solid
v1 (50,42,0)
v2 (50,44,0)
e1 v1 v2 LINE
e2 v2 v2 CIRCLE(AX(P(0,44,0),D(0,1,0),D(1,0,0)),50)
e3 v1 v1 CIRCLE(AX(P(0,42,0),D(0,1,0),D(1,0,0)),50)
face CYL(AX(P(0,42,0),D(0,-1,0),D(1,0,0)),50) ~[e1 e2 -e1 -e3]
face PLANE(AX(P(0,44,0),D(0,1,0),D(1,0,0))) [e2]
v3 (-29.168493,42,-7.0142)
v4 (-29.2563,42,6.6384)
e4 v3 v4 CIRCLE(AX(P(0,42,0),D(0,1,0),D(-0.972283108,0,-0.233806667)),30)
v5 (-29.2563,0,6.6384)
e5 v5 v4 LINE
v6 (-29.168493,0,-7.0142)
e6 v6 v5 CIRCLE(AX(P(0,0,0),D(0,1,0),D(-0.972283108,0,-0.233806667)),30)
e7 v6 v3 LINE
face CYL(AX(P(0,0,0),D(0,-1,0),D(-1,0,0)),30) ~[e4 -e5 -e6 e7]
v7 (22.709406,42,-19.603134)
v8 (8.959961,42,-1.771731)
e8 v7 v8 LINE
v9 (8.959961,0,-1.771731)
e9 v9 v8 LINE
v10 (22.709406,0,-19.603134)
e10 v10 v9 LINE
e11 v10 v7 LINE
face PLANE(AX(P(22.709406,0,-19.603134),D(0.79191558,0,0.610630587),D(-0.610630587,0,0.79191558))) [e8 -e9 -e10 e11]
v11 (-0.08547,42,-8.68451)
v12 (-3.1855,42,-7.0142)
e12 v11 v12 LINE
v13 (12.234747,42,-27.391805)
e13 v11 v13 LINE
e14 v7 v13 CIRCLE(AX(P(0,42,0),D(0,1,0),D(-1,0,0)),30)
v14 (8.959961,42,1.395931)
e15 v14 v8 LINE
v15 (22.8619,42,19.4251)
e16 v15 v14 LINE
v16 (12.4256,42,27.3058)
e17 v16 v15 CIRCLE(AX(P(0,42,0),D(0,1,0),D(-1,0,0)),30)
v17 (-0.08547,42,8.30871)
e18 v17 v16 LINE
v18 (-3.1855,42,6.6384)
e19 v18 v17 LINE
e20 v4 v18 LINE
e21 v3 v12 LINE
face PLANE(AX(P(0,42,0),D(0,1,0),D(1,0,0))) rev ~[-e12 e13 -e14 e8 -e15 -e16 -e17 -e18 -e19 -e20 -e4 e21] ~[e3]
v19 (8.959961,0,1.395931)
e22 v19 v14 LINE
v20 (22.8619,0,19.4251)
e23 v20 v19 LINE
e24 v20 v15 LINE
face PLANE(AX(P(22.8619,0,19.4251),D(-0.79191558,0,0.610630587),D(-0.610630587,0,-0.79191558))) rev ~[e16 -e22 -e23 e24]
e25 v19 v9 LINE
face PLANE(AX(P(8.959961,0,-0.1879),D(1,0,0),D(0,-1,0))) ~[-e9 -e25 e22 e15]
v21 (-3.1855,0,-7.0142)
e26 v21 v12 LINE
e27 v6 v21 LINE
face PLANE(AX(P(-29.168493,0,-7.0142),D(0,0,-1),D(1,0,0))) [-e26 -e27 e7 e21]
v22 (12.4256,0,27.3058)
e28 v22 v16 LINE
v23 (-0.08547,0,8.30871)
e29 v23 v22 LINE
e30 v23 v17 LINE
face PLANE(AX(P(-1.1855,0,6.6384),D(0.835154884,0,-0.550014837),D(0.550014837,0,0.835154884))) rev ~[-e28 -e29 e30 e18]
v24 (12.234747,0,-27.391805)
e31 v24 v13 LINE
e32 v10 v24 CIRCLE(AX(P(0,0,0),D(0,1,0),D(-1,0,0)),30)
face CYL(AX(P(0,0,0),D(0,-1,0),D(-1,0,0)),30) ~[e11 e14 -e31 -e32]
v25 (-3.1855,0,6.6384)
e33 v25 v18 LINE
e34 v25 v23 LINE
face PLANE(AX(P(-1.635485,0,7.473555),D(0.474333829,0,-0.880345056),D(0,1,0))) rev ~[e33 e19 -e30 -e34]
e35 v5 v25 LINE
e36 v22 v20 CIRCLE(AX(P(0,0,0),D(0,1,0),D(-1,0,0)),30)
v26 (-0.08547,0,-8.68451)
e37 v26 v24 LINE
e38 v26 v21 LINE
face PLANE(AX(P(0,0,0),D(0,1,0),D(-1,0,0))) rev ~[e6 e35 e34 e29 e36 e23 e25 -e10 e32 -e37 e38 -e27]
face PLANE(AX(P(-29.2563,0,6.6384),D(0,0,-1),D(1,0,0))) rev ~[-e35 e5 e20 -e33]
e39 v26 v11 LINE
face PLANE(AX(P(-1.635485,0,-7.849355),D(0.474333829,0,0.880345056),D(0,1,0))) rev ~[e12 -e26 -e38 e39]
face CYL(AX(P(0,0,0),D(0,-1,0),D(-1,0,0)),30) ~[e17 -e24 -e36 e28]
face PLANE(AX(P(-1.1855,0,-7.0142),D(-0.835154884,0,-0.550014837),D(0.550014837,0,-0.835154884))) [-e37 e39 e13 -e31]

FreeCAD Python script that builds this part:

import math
import FreeCAD as App
import Part
import Sketcher
Q = App.Units.Quantity


def edges_at(feature, points):
    """Names of the edges that pass closest to the given points."""
    edges = feature.Shape.Edges
    near = lambda p: min(range(len(edges)), key=lambda i: edges[i].distToShape(Part.Vertex(*p))[0])
    return sorted({f"Edge{near(p) + 1}" for p in points})

doc = App.newDocument("Part")
params = doc.addObject("Spreadsheet::Sheet", "Params")
for row, (alias, value) in enumerate([
    ("sketch1_radius", "30 mm"),
    ("pad1_length", "42 mm"),
    ("sketch2_diameter", "100 mm"),
    ("pad2_length", "2 mm"),
    ("chamfer_size", "2 mm"),
], start=1):
    params.set(f"A{row}", alias)
    params.set(f"B{row}", "=" + value)
    params.setAlias(f"B{row}", alias)

body = doc.addObject("PartDesign::Body", "Body")

# Sketch on XZ plane
sketch1 = doc.addObject("Sketcher::SketchObject", "Sketch")
body.addObject(sketch1)
sketch1.AttachmentSupport = (doc.XZ_Plane, [""])
sketch1.MapMode = "FlatFace"
sketch1.addGeometry([
    Part.ArcOfCircle(Part.Circle(App.Vector(0, 0, 0), App.Vector(0, 0, 1), 30), math.radians(167), math.radians(194)),  # 0
    Part.LineSegment(App.Vector(-29, 7, 0), App.Vector(-1, 7, 0)),  # 1
    Part.LineSegment(App.Vector(-1, 7, 0), App.Vector(12, 27, 0)),  # 2
    Part.ArcOfCircle(Part.Circle(App.Vector(0, 0, 0), App.Vector(0, 0, 1), 30), math.radians(40), math.radians(66)),  # 3
    Part.LineSegment(App.Vector(23, 19, 0), App.Vector(8, 0, 0)),  # 4
    Part.LineSegment(App.Vector(8, 0, 0), App.Vector(23, -20, 0)),  # 5
    Part.ArcOfCircle(Part.Circle(App.Vector(0, 0, 0), App.Vector(0, 0, 1), 30), math.radians(-66), math.radians(-41)),  # 6
    Part.LineSegment(App.Vector(12, -27, 0), App.Vector(-1, -7, 0)),  # 7
    Part.LineSegment(App.Vector(-1, -7, 0), App.Vector(-29, -7, 0)),  # 8
], False)
sketch1.addConstraint([
    Sketcher.Constraint("Coincident", 0, 1, 1, 1),
    Sketcher.Constraint("Coincident", 1, 2, 2, 1),
    Sketcher.Constraint("Coincident", 2, 2, 3, 2),
    Sketcher.Constraint("Coincident", 3, 1, 4, 1),
    Sketcher.Constraint("Coincident", 4, 2, 5, 1),
    Sketcher.Constraint("Coincident", 5, 2, 6, 2),
    Sketcher.Constraint("Coincident", 6, 1, 7, 1),
    Sketcher.Constraint("Coincident", 7, 2, 8, 1),
    Sketcher.Constraint("Coincident", 8, 2, 0, 2),
    Sketcher.Constraint("Horizontal", 1),
    Sketcher.Constraint("Horizontal", 8),
    Sketcher.Constraint("Coincident", 0, 3, -1, 1),
    Sketcher.Constraint("Coincident", 3, 3, -1, 1),
    Sketcher.Constraint("Coincident", 6, 3, -1, 1),
    Sketcher.Constraint("Equal", 0, 3),
    Sketcher.Constraint("Equal", 3, 6),
    Sketcher.Constraint("Vertical", 1, 2, 7, 2),
    Sketcher.Constraint("Radius", 0, Q("30 mm")),
    Sketcher.Constraint("DistanceX", 8, 2, 8, 1, Q("27.983 mm")),
    Sketcher.Constraint("DistanceX", 1, 1, 1, 2, Q("28.0708 mm")),
    Sketcher.Constraint("DistanceX", -1, 1, 3, 1, Q("22.862 mm")),
    Sketcher.Constraint("DistanceY", 4, 2, -1, 1, Q("0.188 mm")),
    Sketcher.Constraint("DistanceX", 1, 2, 2, 2, Q("13.611 mm")),
    Sketcher.Constraint("DistanceX", 1, 2, 5, 2, Q("23.895 mm")),
    Sketcher.Constraint("DistanceX", 4, 2, 6, 1, Q("4.496 mm")),
    Sketcher.Constraint("DistanceY", 6, 1, 4, 2, Q("27.204 mm")),
    Sketcher.Constraint("Distance", 2, Q("24.7468 mm")),
])
sketch1.setExpression("Constraints[17]", "Params.sketch1_radius")
pad1 = doc.addObject("PartDesign::Pad", "Pad")
body.addObject(pad1)
pad1.Profile = sketch1
pad1.setExpression("Length", "Params.pad1_length")
pad1.Reversed = True

# Sketch on XZ plane
sketch2 = doc.addObject("Sketcher::SketchObject", "Sketch001")
body.addObject(sketch2)
sketch2.AttachmentSupport = (doc.XZ_Plane, [""])
sketch2.MapMode = "FlatFace"
sketch2.AttachmentOffset = App.Placement(App.Vector(0, 0, -42), App.Rotation())
sketch2.addGeometry(Part.Circle(App.Vector(0, 0, 0), App.Vector(0, 0, 1), 50), False)
sketch2.addConstraint([
    Sketcher.Constraint("Coincident", 0, 3, -1, 1),
    Sketcher.Constraint("Diameter", 0, Q("100 mm")),
])
sketch2.setExpression("Constraints[1]", "Params.sketch2_diameter")
pad2 = doc.addObject("PartDesign::Pad", "Pad001")
body.addObject(pad2)
pad2.Profile = sketch2
pad2.setExpression("Length", "Params.pad2_length")
pad2.Reversed = True
doc.recompute()

chamfer = doc.addObject("PartDesign::Chamfer", "Chamfer")
body.addObject(chamfer)
chamfer.Base = (pad2, edges_at(pad2, [(-1.185, 21, -7.014), (-1.185, 21, 6.638), (7.739, 21, -0.188)]))
chamfer.setExpression("Size", "Params.chamfer_size")

doc.recompute()
